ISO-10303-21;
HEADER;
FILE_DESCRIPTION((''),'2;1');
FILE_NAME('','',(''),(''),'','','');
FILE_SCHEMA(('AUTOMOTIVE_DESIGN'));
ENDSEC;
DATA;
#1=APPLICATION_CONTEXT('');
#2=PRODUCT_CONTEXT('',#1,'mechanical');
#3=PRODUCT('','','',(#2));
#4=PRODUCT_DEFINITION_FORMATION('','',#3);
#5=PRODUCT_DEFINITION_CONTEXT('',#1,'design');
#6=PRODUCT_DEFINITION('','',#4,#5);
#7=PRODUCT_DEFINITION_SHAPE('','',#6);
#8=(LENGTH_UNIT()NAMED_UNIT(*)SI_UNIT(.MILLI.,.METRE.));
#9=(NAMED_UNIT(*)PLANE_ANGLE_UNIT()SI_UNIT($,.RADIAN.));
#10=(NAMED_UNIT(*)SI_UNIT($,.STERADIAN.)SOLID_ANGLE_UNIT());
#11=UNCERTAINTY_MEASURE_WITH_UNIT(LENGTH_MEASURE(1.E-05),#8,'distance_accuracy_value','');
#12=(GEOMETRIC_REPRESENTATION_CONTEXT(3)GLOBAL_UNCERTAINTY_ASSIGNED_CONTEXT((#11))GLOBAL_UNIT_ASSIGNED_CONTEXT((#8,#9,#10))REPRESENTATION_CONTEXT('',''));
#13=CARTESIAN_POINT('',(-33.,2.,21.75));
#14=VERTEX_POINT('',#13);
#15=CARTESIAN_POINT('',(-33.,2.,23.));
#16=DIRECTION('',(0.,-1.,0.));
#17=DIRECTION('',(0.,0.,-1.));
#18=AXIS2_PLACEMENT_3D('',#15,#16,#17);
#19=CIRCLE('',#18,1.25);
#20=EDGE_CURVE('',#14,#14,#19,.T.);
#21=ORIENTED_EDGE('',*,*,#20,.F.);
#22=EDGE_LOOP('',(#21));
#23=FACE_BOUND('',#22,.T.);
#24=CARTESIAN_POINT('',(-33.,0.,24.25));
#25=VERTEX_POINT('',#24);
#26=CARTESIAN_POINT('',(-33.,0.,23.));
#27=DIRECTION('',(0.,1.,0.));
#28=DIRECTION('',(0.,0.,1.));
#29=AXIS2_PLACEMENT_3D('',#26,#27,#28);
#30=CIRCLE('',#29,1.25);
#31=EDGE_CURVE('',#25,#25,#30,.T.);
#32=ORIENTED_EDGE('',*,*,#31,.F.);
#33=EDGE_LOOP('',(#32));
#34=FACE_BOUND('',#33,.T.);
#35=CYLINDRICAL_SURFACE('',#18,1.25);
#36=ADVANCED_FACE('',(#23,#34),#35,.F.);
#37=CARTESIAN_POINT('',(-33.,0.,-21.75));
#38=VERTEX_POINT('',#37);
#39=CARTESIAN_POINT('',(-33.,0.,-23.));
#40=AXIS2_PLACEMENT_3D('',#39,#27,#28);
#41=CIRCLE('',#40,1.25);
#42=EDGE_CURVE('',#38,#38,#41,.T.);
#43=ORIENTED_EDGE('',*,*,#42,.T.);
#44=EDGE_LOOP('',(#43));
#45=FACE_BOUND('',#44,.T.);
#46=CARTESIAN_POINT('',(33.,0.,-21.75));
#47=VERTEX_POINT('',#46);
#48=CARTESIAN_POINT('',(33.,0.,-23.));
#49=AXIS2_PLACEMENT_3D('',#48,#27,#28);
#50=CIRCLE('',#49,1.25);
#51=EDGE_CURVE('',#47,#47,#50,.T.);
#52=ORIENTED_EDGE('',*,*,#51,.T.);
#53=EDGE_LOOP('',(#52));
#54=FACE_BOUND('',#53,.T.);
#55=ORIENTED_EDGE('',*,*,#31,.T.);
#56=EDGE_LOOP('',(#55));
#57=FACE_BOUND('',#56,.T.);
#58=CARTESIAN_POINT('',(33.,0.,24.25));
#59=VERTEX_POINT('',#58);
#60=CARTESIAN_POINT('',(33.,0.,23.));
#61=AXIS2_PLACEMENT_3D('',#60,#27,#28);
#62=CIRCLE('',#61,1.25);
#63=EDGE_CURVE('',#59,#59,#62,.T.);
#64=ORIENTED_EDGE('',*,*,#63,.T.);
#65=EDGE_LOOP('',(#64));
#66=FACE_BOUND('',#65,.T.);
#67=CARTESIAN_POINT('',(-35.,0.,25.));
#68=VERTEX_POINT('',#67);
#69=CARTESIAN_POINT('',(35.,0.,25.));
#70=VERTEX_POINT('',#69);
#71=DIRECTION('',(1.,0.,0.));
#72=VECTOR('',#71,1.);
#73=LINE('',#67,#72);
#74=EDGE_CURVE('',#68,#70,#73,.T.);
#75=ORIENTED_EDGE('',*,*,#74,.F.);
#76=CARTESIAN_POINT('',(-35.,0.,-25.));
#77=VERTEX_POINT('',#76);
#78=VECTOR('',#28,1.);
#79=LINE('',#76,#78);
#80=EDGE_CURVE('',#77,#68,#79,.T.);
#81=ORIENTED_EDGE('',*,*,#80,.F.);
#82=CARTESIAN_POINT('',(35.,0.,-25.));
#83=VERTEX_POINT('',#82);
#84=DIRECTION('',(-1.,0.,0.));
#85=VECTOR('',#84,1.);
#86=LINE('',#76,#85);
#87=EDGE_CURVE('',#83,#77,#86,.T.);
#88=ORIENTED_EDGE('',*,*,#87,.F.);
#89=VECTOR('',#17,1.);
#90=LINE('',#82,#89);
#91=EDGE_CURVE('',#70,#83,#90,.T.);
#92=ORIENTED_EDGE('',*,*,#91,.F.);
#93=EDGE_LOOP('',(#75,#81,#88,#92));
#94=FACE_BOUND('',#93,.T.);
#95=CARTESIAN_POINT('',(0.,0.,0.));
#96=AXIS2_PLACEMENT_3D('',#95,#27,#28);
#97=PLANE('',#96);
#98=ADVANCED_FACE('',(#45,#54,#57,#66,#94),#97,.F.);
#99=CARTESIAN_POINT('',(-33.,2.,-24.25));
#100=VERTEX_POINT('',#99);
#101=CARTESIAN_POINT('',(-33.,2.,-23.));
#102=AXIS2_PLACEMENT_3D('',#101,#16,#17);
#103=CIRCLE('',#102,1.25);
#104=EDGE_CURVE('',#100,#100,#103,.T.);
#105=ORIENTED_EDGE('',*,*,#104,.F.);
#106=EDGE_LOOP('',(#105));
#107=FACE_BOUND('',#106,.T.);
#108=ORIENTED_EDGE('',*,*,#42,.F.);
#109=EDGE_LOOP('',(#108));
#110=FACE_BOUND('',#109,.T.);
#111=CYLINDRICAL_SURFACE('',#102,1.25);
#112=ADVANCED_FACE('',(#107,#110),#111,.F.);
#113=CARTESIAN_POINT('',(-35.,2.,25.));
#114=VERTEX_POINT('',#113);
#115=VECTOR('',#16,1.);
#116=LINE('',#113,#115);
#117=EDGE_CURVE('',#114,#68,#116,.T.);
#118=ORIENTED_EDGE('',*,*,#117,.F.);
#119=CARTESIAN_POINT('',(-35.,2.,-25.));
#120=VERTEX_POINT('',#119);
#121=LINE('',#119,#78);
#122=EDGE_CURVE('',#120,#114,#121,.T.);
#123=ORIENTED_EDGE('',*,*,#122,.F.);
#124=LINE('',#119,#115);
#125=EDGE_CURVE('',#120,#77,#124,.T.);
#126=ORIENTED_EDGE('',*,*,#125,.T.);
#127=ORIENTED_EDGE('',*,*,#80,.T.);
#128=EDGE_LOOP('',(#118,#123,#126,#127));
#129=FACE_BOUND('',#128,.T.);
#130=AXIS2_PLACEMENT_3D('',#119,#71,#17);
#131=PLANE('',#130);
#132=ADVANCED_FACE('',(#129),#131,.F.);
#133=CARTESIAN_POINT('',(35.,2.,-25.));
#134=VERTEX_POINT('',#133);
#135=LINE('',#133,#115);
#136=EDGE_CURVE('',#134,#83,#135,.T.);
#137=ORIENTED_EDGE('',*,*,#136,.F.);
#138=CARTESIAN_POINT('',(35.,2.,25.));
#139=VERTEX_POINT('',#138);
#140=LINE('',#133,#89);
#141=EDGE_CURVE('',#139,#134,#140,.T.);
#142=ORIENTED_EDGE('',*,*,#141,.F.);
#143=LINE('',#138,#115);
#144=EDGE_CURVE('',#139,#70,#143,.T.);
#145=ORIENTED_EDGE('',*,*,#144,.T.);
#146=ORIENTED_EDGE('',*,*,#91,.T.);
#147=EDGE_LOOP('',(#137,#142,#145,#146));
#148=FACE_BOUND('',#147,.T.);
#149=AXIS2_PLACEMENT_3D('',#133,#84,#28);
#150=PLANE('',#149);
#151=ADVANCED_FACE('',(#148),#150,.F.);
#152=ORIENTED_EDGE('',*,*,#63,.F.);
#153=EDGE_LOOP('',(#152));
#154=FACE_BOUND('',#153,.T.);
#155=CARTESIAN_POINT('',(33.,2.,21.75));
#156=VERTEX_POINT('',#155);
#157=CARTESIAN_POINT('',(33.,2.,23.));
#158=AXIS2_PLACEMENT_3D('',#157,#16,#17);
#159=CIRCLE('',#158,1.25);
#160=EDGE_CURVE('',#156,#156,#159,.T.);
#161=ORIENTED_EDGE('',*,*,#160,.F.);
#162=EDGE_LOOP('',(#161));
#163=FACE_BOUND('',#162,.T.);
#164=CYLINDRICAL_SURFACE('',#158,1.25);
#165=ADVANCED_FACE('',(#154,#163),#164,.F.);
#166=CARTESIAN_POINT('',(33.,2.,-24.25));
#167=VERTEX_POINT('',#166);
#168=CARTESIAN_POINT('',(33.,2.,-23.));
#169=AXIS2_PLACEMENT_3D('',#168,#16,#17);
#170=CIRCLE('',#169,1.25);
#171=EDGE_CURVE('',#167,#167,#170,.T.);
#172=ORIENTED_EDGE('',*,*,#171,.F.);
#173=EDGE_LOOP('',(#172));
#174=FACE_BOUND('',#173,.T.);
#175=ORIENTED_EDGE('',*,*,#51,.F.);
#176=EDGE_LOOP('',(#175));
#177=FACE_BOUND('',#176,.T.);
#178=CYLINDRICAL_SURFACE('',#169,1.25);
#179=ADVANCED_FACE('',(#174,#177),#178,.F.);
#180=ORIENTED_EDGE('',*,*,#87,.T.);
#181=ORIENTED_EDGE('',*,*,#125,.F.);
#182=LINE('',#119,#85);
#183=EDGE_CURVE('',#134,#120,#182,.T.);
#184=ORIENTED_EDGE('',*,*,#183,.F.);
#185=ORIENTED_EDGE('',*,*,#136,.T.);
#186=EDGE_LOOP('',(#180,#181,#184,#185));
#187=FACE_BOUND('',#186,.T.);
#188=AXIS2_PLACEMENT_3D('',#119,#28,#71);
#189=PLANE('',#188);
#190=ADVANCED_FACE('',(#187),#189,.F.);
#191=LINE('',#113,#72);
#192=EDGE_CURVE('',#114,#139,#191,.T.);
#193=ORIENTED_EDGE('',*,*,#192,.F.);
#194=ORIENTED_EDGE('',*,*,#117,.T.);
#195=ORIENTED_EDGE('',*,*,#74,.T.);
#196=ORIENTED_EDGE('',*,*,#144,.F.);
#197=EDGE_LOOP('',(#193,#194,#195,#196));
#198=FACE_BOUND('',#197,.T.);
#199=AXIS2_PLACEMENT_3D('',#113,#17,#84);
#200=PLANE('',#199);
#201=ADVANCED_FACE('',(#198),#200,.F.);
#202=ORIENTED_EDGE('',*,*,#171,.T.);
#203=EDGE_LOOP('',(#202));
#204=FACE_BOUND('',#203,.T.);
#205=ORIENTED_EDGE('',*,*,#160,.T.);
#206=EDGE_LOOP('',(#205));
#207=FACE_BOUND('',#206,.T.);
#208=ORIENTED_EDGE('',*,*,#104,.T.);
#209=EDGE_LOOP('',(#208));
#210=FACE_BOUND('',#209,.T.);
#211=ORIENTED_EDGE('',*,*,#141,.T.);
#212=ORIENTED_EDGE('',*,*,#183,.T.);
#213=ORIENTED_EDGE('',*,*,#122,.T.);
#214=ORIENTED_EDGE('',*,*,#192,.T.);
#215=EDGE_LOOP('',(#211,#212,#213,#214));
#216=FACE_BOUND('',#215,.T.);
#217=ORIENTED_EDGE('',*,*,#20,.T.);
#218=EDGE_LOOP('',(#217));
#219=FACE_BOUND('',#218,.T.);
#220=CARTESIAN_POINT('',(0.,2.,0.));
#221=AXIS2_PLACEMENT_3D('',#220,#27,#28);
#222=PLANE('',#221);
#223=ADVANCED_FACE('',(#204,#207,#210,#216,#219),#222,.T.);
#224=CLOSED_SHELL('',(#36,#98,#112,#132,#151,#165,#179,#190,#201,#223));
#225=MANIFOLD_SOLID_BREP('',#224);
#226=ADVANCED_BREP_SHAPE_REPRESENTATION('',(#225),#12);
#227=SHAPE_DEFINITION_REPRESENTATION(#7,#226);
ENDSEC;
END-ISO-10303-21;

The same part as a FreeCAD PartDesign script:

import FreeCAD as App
import Part
import Sketcher

V = App.Vector
Q = App.Units.Quantity


def add_polygon(sketch, points):
    """Adds a closed chain of lines whose ends are joined by coincident constraints."""
    first, n = sketch.GeometryCount, len(points)
    for a, b in zip(points, points[1:] + points[:1]):
        sketch.addGeometry(Part.LineSegment(App.Vector(*a, 0), App.Vector(*b, 0)), False)
    for i in range(n):
        sketch.addConstraint(Sketcher.Constraint("Coincident", first + i, 2, first + (i + 1) % n, 1))

doc = App.newDocument("Part")
body = doc.addObject("PartDesign::Body", "Body")

# Sketch on XZ plane
sketch1 = body.newObject("Sketcher::SketchObject", "Sketch")
sketch1.AttachmentSupport = (doc.getObject("XZ_Plane"), [""])
sketch1.MapMode = "FlatFace"
add_polygon(sketch1, [(-35, -25), (-35, 25), (35, 25), (35, -25)])  # lines 0-3
sketch1.addConstraint([
    Sketcher.Constraint("Vertical", 0),
    Sketcher.Constraint("Horizontal", 1),
    Sketcher.Constraint("Vertical", 2),
    Sketcher.Constraint("Horizontal", 3),
    Sketcher.Constraint("Symmetric", 0, 2, 2, 2, -1, 1),
    Sketcher.Constraint("DistanceX", 1, 1, 1, 2, Q("70 mm")),
    Sketcher.Constraint("DistanceY", 0, 1, 0, 2, Q("50 mm")),
])
pad1 = body.newObject("PartDesign::Pad", "Pad")
pad1.Profile = sketch1
pad1.Length = 2
pad1.Reversed = True

# Sketch on XZ plane
sketch2 = body.newObject("Sketcher::SketchObject", "Sketch001")
sketch2.AttachmentSupport = (doc.getObject("XZ_Plane"), [""])
sketch2.MapMode = "FlatFace"
sketch2.addGeometry([
    Part.Circle(V(-33, 23, 0), V(0, 0, 1), 1.25),
    Part.Circle(V(33, 23, 0), V(0, 0, 1), 1.25),
    Part.Circle(V(33, -23, 0), V(0, 0, 1), 1.25),
    Part.Circle(V(-33, -23, 0), V(0, 0, 1), 1.25),
], False)
sketch2.addConstraint([
    Sketcher.Constraint("Equal", 0, 1),
    Sketcher.Constraint("Equal", 1, 2),
    Sketcher.Constraint("Equal", 2, 3),
    Sketcher.Constraint("Symmetric", 0, 3, 2, 3, -1, 1),
    Sketcher.Constraint("Symmetric", 1, 3, 3, 3, -1, 1),
    Sketcher.Constraint("Symmetric", 0, 3, 1, 3, -2),
    Sketcher.Constraint("Diameter", 0, Q("2.5 mm")),
    Sketcher.Constraint("DistanceX", 0, 3, -1, 1, Q("33 mm")),
    Sketcher.Constraint("DistanceY", -1, 1, 0, 3, Q("23 mm")),
])
pocket1 = body.newObject("PartDesign::Pocket", "Pocket")
pocket1.Profile = sketch2
pocket1.Type = "ThroughAll"
pocket1.Midplane = True

doc.recompute()
